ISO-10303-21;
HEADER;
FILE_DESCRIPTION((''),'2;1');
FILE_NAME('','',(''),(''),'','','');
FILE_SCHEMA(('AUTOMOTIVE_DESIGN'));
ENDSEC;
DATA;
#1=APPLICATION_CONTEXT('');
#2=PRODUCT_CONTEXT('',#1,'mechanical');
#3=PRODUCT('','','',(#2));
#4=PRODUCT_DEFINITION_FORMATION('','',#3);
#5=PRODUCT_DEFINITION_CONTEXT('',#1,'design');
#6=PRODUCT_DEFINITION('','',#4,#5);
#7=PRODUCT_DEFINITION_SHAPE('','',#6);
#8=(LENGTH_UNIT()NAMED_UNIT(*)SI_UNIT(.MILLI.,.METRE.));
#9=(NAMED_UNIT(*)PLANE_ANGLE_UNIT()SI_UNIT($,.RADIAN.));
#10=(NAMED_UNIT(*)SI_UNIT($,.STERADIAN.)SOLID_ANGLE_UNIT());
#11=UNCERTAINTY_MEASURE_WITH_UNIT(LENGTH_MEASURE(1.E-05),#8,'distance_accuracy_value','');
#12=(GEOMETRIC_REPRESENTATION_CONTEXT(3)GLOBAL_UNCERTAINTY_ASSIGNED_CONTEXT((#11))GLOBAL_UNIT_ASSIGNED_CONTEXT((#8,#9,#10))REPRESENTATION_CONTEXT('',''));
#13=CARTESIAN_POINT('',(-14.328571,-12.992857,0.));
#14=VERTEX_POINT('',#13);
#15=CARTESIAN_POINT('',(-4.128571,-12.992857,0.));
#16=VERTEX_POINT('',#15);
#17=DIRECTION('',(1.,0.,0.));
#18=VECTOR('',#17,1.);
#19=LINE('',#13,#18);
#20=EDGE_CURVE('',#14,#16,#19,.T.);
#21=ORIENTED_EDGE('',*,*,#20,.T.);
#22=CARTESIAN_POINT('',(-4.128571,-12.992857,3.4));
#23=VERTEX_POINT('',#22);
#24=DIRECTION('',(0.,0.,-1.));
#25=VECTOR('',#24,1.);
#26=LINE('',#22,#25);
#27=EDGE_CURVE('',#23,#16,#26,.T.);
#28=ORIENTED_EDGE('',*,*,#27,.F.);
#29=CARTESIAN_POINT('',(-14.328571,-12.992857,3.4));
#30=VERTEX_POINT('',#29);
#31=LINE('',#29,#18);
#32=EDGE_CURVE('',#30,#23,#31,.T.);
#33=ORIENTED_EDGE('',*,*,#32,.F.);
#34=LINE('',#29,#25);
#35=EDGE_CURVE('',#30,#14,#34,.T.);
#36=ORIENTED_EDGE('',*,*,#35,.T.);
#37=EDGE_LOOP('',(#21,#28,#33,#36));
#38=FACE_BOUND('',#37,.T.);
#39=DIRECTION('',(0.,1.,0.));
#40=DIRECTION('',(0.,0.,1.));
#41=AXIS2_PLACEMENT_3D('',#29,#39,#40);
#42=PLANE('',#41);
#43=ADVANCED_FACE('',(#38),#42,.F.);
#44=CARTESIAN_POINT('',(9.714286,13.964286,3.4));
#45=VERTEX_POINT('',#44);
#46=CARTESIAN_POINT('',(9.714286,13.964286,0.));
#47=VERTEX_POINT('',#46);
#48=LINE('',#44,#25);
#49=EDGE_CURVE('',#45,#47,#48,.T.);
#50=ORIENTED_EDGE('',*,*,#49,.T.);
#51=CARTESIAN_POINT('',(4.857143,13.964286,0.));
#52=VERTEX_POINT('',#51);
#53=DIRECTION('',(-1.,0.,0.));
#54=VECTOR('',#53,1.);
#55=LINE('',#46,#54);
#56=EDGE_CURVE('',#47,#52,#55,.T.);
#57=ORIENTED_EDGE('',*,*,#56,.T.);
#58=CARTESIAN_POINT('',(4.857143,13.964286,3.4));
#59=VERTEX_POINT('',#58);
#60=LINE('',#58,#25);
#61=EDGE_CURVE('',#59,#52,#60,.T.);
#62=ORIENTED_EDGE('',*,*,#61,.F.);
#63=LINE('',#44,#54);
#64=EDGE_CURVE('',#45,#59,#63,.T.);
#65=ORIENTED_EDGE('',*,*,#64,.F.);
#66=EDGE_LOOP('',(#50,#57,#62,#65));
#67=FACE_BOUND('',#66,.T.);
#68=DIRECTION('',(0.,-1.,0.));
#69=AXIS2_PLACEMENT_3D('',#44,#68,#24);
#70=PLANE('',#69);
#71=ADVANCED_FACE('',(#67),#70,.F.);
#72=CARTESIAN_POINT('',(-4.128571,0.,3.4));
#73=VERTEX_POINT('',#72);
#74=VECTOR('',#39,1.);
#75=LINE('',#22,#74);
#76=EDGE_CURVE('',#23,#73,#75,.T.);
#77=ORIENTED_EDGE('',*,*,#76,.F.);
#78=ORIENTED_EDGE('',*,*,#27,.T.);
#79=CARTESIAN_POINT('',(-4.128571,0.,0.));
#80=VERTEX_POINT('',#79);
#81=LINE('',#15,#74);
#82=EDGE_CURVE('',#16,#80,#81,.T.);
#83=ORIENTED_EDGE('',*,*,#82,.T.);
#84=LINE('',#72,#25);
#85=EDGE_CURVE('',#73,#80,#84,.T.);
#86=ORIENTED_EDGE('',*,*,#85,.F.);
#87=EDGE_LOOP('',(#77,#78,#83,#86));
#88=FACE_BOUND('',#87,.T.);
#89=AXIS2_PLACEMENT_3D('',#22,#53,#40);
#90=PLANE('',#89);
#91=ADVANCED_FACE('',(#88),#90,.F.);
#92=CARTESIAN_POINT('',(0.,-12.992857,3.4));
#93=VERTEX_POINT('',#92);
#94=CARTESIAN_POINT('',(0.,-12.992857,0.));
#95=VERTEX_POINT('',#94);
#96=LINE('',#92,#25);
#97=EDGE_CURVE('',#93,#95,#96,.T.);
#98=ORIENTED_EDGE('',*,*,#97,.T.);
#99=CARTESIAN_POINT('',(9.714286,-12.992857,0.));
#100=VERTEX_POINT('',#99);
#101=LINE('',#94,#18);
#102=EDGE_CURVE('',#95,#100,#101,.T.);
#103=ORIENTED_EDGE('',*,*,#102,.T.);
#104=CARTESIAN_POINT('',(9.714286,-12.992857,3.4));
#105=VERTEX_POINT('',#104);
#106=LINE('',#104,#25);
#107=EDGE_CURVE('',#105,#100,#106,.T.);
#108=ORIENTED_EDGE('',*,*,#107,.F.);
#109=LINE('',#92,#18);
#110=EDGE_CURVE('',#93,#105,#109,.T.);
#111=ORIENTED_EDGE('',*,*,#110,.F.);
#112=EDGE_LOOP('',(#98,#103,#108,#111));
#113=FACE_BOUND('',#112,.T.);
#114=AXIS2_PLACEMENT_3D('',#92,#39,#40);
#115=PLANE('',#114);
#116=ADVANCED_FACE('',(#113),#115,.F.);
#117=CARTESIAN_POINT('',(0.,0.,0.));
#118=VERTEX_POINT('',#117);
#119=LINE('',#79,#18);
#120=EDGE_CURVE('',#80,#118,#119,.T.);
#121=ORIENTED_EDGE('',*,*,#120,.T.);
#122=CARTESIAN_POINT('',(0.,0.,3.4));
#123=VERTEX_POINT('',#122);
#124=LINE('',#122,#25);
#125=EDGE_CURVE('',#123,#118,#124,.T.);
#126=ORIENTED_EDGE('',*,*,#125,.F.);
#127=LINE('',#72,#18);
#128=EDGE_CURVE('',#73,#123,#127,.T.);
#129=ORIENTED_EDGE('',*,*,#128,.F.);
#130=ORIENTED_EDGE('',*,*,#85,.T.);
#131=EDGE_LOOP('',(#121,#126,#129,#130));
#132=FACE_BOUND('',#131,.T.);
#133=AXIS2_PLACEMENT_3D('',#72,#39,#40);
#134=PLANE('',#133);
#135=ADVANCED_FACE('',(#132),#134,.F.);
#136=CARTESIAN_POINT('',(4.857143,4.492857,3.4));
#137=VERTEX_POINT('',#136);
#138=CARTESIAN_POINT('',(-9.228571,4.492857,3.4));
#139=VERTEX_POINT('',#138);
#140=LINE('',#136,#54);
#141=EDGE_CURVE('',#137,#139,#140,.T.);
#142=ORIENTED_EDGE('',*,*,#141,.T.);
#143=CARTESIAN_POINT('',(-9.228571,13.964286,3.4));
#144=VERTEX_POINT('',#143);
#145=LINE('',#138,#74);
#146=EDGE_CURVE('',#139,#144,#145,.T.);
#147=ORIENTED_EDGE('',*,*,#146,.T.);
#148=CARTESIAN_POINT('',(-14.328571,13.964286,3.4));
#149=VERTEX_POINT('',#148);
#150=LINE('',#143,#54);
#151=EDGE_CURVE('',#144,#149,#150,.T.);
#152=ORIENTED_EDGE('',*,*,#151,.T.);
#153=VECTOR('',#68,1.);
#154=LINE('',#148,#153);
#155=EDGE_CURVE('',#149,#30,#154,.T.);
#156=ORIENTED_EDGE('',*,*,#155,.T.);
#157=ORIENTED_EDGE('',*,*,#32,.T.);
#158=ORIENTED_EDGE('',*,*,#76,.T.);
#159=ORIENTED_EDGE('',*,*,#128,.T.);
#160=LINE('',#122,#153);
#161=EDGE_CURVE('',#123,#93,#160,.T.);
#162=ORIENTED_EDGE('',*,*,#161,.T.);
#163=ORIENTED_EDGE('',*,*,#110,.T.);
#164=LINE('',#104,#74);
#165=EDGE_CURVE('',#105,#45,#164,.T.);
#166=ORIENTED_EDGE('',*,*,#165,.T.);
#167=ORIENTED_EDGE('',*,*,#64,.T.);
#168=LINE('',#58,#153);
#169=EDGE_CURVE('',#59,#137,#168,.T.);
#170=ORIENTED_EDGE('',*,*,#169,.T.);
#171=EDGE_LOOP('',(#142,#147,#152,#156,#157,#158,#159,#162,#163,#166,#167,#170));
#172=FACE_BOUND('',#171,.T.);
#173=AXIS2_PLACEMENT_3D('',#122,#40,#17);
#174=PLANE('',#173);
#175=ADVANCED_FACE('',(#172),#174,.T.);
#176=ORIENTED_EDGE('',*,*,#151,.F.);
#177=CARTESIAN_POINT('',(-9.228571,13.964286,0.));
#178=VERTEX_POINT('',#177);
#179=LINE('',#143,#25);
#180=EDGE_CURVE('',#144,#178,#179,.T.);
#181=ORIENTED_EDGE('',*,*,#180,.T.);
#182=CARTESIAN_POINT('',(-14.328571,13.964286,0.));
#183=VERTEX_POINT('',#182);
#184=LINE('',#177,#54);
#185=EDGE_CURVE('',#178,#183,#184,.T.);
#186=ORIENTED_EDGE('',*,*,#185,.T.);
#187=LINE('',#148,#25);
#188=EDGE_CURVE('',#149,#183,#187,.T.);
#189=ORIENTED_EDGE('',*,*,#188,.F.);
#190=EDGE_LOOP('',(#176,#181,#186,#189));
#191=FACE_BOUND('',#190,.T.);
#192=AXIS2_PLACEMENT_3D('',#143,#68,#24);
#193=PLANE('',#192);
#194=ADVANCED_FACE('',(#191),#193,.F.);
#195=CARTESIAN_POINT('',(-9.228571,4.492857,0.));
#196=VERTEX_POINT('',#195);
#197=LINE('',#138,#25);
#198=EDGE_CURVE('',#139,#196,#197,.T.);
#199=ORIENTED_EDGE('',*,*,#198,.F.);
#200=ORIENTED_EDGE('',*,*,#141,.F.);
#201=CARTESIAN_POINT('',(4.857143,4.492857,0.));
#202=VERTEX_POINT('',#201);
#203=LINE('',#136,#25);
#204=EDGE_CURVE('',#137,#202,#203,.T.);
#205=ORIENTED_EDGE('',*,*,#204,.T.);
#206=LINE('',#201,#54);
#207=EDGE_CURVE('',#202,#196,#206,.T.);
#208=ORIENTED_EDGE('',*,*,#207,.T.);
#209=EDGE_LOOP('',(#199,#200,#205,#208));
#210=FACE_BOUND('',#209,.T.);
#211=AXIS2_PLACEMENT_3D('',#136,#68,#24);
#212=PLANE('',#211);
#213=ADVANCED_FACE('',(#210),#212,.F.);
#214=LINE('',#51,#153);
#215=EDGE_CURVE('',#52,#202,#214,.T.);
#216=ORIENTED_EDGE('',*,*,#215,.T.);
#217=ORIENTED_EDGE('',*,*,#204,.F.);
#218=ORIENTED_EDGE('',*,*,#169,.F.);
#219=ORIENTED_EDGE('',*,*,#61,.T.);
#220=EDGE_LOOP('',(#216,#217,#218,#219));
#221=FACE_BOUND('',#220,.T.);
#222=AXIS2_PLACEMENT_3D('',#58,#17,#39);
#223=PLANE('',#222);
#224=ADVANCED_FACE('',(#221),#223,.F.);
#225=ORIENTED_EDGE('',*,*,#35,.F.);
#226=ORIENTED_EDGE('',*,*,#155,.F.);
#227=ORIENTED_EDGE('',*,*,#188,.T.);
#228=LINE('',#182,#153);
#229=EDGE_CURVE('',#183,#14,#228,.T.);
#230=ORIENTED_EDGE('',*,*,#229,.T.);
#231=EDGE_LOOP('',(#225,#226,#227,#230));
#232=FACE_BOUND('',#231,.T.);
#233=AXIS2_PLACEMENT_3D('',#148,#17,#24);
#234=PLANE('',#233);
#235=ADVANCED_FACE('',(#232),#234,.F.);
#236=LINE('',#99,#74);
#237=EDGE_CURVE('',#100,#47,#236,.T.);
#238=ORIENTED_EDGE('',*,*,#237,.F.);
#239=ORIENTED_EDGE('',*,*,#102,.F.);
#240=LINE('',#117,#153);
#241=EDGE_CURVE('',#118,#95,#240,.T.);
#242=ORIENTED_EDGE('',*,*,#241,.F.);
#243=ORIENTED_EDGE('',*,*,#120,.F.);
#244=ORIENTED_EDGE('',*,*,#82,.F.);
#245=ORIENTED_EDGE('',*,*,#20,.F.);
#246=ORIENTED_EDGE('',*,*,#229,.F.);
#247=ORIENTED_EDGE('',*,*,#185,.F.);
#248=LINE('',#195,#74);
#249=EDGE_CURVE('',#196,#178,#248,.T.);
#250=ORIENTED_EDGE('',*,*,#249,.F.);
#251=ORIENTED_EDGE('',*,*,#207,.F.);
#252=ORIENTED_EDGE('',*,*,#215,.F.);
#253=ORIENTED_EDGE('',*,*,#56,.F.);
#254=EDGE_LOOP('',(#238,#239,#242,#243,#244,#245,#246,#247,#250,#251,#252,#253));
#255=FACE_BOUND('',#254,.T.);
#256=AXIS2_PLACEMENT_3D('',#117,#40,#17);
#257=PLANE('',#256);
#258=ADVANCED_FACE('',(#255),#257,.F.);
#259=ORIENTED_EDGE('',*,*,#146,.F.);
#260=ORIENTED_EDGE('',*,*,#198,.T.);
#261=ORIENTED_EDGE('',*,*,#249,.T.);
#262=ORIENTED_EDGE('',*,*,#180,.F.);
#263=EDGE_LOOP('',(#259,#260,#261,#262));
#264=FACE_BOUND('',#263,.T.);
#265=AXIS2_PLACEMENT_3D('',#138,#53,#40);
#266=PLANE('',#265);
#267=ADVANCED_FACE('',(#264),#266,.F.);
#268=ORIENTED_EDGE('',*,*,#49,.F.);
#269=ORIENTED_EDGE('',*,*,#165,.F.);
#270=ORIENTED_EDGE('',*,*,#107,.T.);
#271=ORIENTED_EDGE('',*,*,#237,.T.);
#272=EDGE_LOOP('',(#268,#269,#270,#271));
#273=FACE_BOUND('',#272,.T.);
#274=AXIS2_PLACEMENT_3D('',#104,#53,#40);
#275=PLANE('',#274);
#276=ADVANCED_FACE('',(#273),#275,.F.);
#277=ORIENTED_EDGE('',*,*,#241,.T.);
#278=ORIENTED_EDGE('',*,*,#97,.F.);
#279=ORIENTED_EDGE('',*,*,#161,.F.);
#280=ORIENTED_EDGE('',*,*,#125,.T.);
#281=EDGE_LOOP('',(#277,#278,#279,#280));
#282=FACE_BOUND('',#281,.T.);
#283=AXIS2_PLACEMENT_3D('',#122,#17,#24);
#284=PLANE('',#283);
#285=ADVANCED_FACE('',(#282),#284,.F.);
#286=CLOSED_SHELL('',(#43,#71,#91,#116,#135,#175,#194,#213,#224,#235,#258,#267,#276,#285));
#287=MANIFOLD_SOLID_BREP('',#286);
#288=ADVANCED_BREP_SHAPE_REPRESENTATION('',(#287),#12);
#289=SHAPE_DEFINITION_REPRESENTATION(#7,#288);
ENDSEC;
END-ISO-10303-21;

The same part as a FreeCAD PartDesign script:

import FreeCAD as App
import Part
import Sketcher
from FreeCAD import Vector


def add_polygon(sketch, points):
    """Adds a closed chain of lines whose ends are joined by coincident constraints."""
    first, n = sketch.GeometryCount, len(points)
    for a, b in zip(points, points[1:] + points[:1]):
        sketch.addGeometry(Part.LineSegment(App.Vector(*a, 0), App.Vector(*b, 0)), False)
    for i in range(n):
        sketch.addConstraint(Sketcher.Constraint("Coincident", first + i, 2, first + (i + 1) % n, 1))

doc = App.newDocument("Part")
params = doc.addObject("Spreadsheet::Sheet", "Params")
for row, (alias, value) in enumerate([
    ("sketch1_width", "10.2 mm"),
    ("sketch1_width2", "5.1 mm"),
    ("pad1_length", "3.4 mm"),
], start=1):
    params.set(f"A{row}", alias)
    params.set(f"B{row}", "=" + value)
    params.setAlias(f"B{row}", alias)

body = doc.addObject("PartDesign::Body", "Body")

sketch1 = doc.addObject("Sketcher::SketchObject", "Sketch")
body.addObject(sketch1)
sketch1.AttachmentSupport = (doc.XY_Plane, [""])
sketch1.MapMode = "FlatFace"
add_polygon(sketch1, [(-14.328571, 13.964286), (-14.328571, -12.992857), (-4.128571, -12.992857), (-4.128571, 0), (0, 0), (0, -12.992857), (9.714286, -12.992857), (9.714286, 13.964286), (4.857143, 13.964286), (4.857143, 4.492857), (-9.228571, 4.492857), (-9.228571, 13.964286)])
sketch1.addConstraint(Sketcher.Constraint("Vertical", 0))
sketch1.addConstraint(Sketcher.Constraint("Horizontal", 1))
sketch1.addConstraint(Sketcher.Constraint("Vertical", 2))
sketch1.addConstraint(Sketcher.Constraint("Horizontal", 3))
sketch1.addConstraint(Sketcher.Constraint("Vertical", 4))
sketch1.addConstraint(Sketcher.Constraint("Horizontal", 5))
sketch1.addConstraint(Sketcher.Constraint("Vertical", 6))
sketch1.addConstraint(Sketcher.Constraint("Horizontal", 7))
sketch1.addConstraint(Sketcher.Constraint("Vertical", 8))
sketch1.addConstraint(Sketcher.Constraint("Horizontal", 9))
sketch1.addConstraint(Sketcher.Constraint("Vertical", 10))
sketch1.addConstraint(Sketcher.Constraint("Horizontal", 11))
sketch1.addConstraint(Sketcher.Constraint("Coincident", 3, 2, -1, 1))
sketch1.addConstraint(Sketcher.Constraint("Horizontal", 1, 2, 4, 2))
sketch1.addConstraint(Sketcher.Constraint("Horizontal", 7, 2, 10, 2))
sketch1.addConstraint(Sketcher.Constraint("DistanceX", 1, 1, 1, 2, 10.2))
sketch1.addConstraint(Sketcher.Constraint("DistanceX", 11, 2, 11, 1, 5.1))
sketch1.addConstraint(Sketcher.Constraint("DistanceX", 3, 1, 3, 2, 4.128571))
sketch1.addConstraint(Sketcher.Constraint("DistanceY", 8, 2, 8, 1, 9.471429))
sketch1.addConstraint(Sketcher.Constraint("DistanceX", 5, 1, 5, 2, 9.714286))
sketch1.addConstraint(Sketcher.Constraint("DistanceX", 7, 2, 7, 1, 4.857143))
sketch1.addConstraint(Sketcher.Constraint("DistanceY", 0, 2, 0, 1, 26.957143))
sketch1.addConstraint(Sketcher.Constraint("DistanceY", 2, 1, 2, 2, 12.992857))
sketch1.setExpression("Constraints[27]", "Params.sketch1_width")
sketch1.setExpression("Constraints[28]", "Params.sketch1_width2")
pad1 = doc.addObject("PartDesign::Pad", "Pad")
body.addObject(pad1)
pad1.Profile = sketch1
pad1.setExpression("Length", "Params.pad1_length")

doc.recompute()
